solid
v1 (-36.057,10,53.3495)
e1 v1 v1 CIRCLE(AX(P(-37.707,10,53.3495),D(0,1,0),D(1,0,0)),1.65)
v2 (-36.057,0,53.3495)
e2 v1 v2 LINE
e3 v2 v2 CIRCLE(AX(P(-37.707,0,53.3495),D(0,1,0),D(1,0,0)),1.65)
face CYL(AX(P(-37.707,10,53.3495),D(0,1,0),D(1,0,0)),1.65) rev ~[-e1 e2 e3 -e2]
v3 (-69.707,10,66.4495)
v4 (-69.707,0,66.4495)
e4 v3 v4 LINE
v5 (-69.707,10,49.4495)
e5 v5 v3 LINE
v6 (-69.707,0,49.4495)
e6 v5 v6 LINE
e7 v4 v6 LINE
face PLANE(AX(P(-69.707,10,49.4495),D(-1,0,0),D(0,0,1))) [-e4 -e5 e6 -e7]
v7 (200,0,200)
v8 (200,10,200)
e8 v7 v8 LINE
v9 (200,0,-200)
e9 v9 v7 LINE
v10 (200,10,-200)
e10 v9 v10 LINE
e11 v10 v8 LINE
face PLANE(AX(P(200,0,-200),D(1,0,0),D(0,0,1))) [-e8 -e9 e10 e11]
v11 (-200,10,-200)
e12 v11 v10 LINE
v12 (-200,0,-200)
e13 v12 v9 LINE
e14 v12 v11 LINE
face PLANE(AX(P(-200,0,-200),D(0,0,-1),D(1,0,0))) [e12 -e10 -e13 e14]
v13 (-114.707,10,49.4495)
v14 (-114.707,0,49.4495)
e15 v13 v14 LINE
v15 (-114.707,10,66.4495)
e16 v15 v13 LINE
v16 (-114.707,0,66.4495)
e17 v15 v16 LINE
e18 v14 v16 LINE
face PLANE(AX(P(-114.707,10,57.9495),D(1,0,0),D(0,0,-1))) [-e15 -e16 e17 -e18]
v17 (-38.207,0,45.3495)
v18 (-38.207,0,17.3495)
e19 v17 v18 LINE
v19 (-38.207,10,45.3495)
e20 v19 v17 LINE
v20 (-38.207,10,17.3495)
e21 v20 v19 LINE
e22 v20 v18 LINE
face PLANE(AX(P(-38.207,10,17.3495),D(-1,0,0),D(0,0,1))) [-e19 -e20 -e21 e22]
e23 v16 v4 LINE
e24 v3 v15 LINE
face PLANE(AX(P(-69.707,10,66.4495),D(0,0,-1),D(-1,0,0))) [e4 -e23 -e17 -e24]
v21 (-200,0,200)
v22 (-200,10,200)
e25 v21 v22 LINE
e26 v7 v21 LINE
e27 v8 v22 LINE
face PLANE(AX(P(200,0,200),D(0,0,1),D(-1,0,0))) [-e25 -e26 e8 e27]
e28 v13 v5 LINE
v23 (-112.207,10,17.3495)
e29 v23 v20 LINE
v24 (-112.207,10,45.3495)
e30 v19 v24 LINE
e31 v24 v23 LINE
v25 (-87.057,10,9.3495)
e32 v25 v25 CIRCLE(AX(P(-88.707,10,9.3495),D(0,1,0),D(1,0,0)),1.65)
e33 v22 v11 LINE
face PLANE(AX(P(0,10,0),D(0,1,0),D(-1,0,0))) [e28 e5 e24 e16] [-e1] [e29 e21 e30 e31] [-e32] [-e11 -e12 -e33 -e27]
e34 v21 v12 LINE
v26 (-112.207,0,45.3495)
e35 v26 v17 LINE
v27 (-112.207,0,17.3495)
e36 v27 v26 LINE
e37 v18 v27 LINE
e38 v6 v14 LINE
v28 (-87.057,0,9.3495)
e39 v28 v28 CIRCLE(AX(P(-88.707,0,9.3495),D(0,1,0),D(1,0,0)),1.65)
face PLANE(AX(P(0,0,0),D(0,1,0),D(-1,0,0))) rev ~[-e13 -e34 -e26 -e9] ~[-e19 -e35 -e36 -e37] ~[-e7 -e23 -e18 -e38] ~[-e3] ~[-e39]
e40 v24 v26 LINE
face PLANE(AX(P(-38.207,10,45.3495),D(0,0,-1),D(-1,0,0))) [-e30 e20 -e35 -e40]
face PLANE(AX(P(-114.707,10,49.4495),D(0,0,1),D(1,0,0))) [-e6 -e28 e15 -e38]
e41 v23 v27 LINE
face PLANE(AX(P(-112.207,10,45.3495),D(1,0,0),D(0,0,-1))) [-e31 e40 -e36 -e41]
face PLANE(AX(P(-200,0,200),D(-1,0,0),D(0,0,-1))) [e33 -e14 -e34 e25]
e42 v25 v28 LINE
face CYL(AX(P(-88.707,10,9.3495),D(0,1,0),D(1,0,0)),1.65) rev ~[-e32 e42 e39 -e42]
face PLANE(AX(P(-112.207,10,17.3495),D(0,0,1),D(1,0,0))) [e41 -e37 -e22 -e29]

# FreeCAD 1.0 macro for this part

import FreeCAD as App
import Part
import Sketcher
from FreeCAD import Vector

doc = App.newDocument("Part")
body = doc.addObject("PartDesign::Body", "Body")

# Sketch on XZ plane
sketch1 = body.newObject("Sketcher::SketchObject", "Sketch")
sketch1.AttachmentSupport = (doc.getObject("XZ_Plane"), [""])
sketch1.MapMode = "FlatFace"
sketch1.addGeometry([
    Part.LineSegment(Vector(200, -200, 0), Vector(-200, -200, 0)),
    Part.LineSegment(Vector(-200, -200, 0), Vector(-200, 200, 0)),
    Part.LineSegment(Vector(-200, 200, 0), Vector(200, 200, 0)),
    Part.LineSegment(Vector(200, 200, 0), Vector(200, -200, 0)),
], False)
sketch1.addConstraint([
    Sketcher.Constraint("Coincident", 0, 2, 1, 1),
    Sketcher.Constraint("Coincident", 1, 2, 2, 1),
    Sketcher.Constraint("Coincident", 2, 2, 3, 1),
    Sketcher.Constraint("Coincident", 3, 2, 0, 1),
    Sketcher.Constraint("Horizontal", 0),
    Sketcher.Constraint("Vertical", 1),
    Sketcher.Constraint("Horizontal", 2),
    Sketcher.Constraint("Vertical", 3),
    Sketcher.Constraint("Symmetric", 0, 2, 2, 2, -1, 1),
    Sketcher.Constraint("Equal", 2, 1),
    Sketcher.Constraint("DistanceX", 0, 2, 0, 1, 400.0),
])
pad1 = body.newObject("PartDesign::Pad", "Pad")
pad1.Profile = sketch1
pad1.Length = 10
pad1.Reversed = True

# Sketch on XZ plane
sketch2 = body.newObject("Sketcher::SketchObject", "Sketch001")
sketch2.AttachmentSupport = (doc.getObject("XZ_Plane"), [""])
sketch2.MapMode = "FlatFace"
sketch2.AttachmentOffset = App.Placement(Vector(0, 0, -10), App.Rotation())
sketch2.addGeometry([
    Part.LineSegment(Vector(-38.2, 17.3, 0), Vector(-112.2, 17.3, 0)),  # 0
    Part.LineSegment(Vector(-112.2, 17.3, 0), Vector(-112.2, 45.3, 0)),  # 1
    Part.LineSegment(Vector(-112.2, 45.3, 0), Vector(-38.2, 45.3, 0)),  # 2
    Part.LineSegment(Vector(-38.2, 45.3, 0), Vector(-38.2, 17.3, 0)),  # 3
    Part.LineSegment(Vector(-69.7, 49.4, 0), Vector(-114.7, 49.4, 0)),  # 4
    Part.LineSegment(Vector(-114.7, 49.4, 0), Vector(-114.7, 66.4, 0)),  # 5
    Part.LineSegment(Vector(-114.7, 66.4, 0), Vector(-69.7, 66.4, 0)),  # 6
    Part.LineSegment(Vector(-69.7, 66.4, 0), Vector(-69.7, 49.4, 0)),  # 7
    Part.Circle(Vector(-88.7, 9.3, 0), Vector(0, 0, 1), 1.6),  # 8
    Part.Circle(Vector(-37.7, 53.3, 0), Vector(0, 0, 1), 1.6),  # 9
], False)
sketch2.addConstraint([
    Sketcher.Constraint("Coincident", 0, 2, 1, 1),
    Sketcher.Constraint("Coincident", 1, 2, 2, 1),
    Sketcher.Constraint("Coincident", 2, 2, 3, 1),
    Sketcher.Constraint("Coincident", 3, 2, 0, 1),
    Sketcher.Constraint("Coincident", 4, 2, 5, 1),
    Sketcher.Constraint("Coincident", 5, 2, 6, 1),
    Sketcher.Constraint("Coincident", 6, 2, 7, 1),
    Sketcher.Constraint("Coincident", 7, 2, 4, 1),
    Sketcher.Constraint("Horizontal", 0),
    Sketcher.Constraint("Vertical", 1),
    Sketcher.Constraint("Horizontal", 2),
    Sketcher.Constraint("Vertical", 3),
    Sketcher.Constraint("Horizontal", 4),
    Sketcher.Constraint("Vertical", 5),
    Sketcher.Constraint("Horizontal", 6),
    Sketcher.Constraint("Vertical", 7),
    Sketcher.Constraint("Equal", 8, 9),
    Sketcher.Constraint("Diameter", 8, 3.3),
    Sketcher.Constraint("DistanceX", 0, 2, 0, 1, 74.0),
    Sketcher.Constraint("DistanceX", 4, 2, 4, 1, 45.0),
    Sketcher.Constraint("DistanceY", 1, 1, 1, 2, 28.0),
    Sketcher.Constraint("DistanceY", 5, 1, 5, 2, 17.0),
    Sketcher.Constraint("DistanceY", 8, 3, 0, 2, 8.0),
    Sketcher.Constraint("DistanceY", 1, 2, 9, 3, 8.0),
    Sketcher.Constraint("DistanceX", 0, 2, 8, 3, 23.5),
    Sketcher.Constraint("DistanceX", 2, 2, 9, 3, 0.5),
    Sketcher.Constraint("DistanceX", 1, 2, 6, 2, 42.5),
    Sketcher.Constraint("DistanceY", 1, 2, 4, 2, 4.1),
    Sketcher.Constraint("DistanceX", 8, 3, -1, 1, 88.707),
    Sketcher.Constraint("DistanceY", -1, 1, 8, 3, 9.3495),
])
pocket1 = body.newObject("PartDesign::Pocket", "Pocket")
pocket1.Profile = sketch2
pocket1.Type = "UpToFirst"
pocket1.Reversed = True

doc.recompute()
